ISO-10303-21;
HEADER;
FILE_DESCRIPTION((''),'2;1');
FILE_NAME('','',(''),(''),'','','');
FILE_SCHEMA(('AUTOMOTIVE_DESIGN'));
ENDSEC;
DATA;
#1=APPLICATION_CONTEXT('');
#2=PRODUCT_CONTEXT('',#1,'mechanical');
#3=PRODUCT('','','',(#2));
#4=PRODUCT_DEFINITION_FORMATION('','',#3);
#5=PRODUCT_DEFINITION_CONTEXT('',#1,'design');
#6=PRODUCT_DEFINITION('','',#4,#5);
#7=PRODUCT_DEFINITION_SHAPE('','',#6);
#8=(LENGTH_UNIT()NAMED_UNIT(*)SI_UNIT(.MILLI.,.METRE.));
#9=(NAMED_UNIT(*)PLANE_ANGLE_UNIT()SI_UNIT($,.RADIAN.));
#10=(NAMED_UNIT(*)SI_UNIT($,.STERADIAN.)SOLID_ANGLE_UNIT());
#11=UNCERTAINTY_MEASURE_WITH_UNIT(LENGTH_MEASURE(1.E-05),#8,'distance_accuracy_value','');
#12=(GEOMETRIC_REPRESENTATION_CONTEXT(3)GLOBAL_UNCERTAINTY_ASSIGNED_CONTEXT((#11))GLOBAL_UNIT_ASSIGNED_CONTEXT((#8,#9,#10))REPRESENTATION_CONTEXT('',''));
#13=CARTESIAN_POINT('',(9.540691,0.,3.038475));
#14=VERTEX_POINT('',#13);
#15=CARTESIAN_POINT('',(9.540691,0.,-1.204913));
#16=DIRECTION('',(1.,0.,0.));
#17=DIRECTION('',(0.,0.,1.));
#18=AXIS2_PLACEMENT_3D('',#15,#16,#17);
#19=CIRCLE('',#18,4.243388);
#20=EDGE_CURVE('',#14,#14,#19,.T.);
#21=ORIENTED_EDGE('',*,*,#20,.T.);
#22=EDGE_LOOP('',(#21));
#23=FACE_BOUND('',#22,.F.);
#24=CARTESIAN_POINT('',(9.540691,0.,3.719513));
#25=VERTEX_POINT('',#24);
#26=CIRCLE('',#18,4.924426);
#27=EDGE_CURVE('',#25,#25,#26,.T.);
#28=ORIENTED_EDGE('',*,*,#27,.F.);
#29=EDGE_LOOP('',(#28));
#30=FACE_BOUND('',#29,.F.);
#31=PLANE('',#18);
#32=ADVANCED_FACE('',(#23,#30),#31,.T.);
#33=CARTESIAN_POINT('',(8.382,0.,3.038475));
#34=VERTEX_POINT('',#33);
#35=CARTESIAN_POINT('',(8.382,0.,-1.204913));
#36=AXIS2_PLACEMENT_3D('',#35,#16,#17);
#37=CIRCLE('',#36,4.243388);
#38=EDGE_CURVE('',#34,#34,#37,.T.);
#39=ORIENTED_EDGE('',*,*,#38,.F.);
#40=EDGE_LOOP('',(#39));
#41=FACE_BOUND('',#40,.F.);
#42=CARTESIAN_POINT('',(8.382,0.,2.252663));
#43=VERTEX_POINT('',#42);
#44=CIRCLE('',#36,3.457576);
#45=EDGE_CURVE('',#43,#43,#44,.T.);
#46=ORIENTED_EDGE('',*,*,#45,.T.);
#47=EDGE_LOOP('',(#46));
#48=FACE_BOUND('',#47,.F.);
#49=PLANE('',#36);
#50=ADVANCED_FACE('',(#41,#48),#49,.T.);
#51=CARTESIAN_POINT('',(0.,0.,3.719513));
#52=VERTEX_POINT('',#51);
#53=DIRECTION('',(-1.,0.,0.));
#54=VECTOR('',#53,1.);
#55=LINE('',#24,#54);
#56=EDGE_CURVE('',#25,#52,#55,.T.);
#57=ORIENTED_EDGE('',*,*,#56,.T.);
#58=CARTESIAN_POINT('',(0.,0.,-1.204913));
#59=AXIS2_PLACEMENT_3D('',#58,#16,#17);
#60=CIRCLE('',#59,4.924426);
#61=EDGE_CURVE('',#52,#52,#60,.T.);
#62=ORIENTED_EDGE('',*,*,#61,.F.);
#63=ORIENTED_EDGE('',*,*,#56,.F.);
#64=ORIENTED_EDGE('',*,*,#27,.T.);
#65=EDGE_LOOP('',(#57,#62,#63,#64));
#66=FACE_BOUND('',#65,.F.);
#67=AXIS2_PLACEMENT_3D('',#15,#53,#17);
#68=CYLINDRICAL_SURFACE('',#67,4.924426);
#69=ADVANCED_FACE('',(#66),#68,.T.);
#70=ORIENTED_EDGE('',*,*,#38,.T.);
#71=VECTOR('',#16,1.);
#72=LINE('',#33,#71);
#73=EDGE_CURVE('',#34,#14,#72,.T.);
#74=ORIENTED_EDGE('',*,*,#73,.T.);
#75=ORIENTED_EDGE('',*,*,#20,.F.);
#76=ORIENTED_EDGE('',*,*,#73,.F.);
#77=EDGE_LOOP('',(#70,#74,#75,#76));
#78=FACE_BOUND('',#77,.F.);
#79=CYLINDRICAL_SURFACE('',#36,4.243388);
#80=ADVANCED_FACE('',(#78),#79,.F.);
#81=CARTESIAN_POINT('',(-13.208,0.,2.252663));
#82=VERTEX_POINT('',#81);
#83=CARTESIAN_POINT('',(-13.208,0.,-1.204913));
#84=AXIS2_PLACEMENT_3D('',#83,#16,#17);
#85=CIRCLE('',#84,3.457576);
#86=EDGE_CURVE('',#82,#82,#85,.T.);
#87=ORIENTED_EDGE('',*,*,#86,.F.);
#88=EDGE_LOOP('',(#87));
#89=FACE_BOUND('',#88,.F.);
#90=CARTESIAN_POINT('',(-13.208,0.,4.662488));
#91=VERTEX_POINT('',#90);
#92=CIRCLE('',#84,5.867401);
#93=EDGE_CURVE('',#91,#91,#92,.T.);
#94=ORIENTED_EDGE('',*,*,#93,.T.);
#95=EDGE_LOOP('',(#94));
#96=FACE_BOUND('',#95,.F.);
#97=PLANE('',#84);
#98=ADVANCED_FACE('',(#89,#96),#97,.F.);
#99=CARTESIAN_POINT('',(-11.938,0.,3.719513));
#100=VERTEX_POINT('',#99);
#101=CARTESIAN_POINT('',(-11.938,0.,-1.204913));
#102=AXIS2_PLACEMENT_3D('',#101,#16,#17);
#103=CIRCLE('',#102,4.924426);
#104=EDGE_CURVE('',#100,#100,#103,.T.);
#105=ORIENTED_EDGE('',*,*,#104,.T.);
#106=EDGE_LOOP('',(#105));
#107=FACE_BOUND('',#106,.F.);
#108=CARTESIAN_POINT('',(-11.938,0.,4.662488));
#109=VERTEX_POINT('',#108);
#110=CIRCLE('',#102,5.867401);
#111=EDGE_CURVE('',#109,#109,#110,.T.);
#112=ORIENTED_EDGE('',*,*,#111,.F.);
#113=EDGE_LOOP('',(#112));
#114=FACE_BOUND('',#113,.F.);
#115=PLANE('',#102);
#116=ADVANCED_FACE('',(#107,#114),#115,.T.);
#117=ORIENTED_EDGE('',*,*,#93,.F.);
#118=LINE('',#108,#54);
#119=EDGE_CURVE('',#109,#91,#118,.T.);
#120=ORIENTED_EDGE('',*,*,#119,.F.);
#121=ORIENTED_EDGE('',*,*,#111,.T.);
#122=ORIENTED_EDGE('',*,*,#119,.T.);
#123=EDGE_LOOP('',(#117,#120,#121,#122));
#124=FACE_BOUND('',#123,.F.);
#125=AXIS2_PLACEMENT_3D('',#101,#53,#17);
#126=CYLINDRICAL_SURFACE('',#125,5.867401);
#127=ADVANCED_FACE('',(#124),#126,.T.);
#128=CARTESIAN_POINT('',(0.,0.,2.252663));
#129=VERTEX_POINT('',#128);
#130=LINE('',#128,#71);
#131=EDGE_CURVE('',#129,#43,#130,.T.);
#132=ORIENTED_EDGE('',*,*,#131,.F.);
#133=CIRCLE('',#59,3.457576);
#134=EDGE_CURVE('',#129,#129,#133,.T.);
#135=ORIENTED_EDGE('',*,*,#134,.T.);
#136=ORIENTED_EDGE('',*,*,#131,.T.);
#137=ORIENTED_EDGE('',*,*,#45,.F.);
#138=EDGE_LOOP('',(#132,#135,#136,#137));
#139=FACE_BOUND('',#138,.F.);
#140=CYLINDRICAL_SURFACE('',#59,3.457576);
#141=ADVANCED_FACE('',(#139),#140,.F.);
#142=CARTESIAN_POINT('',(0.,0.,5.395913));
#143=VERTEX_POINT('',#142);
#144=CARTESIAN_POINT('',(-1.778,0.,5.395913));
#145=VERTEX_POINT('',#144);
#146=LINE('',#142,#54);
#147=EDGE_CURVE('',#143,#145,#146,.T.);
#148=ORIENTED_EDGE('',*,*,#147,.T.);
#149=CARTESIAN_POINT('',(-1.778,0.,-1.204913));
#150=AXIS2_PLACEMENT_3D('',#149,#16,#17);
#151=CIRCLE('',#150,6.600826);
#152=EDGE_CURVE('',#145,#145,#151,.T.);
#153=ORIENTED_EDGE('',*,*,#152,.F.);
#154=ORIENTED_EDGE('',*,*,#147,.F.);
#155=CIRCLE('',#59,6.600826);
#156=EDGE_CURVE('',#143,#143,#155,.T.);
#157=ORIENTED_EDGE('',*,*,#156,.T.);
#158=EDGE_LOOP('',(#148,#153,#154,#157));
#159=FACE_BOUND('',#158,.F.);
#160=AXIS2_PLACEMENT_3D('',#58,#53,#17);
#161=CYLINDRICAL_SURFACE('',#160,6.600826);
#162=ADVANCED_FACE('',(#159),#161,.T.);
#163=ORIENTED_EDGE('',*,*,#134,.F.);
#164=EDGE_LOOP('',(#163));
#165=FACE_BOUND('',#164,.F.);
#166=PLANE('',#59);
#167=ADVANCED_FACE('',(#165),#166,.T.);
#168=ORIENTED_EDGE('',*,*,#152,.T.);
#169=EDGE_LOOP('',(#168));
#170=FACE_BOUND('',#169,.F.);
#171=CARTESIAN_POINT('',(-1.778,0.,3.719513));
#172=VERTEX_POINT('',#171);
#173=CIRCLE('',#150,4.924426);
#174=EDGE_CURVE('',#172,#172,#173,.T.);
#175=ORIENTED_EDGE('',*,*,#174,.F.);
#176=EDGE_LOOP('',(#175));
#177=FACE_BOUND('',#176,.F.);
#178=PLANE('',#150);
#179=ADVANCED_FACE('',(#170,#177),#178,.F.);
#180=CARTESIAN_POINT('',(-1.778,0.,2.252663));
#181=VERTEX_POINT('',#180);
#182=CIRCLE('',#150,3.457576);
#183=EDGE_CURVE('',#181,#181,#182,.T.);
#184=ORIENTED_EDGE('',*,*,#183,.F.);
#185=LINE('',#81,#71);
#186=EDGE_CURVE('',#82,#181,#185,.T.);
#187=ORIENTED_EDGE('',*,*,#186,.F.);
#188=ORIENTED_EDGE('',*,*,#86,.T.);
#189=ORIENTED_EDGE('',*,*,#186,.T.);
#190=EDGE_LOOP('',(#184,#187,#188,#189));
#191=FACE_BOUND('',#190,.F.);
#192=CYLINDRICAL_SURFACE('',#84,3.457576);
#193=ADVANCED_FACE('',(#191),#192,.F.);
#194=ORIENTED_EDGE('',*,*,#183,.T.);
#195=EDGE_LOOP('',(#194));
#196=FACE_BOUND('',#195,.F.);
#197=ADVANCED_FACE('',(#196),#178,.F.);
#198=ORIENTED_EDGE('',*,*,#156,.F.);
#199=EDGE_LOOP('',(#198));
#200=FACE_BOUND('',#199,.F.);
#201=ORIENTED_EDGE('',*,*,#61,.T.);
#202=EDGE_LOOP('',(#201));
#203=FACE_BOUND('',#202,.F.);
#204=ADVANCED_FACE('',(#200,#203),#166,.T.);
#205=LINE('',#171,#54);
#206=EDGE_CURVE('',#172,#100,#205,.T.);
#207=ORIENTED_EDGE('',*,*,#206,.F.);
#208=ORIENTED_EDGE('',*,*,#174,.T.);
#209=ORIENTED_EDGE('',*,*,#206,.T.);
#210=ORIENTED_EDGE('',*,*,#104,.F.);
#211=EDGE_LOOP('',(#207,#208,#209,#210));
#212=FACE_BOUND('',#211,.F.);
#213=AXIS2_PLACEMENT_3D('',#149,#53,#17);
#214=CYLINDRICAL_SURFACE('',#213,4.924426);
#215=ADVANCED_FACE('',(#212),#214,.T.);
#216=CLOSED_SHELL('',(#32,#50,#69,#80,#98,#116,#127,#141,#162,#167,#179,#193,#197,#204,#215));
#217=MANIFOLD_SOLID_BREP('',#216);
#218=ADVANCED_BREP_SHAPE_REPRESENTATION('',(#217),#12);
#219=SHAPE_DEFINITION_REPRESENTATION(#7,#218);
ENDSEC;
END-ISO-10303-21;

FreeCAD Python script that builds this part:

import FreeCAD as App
import Part
import Sketcher
from FreeCAD import Vector
Q = App.Units.Quantity


def add_polygon(sketch, points):
    """Adds a closed chain of lines whose ends are joined by coincident constraints."""
    first, n = sketch.GeometryCount, len(points)
    for a, b in zip(points, points[1:] + points[:1]):
        sketch.addGeometry(Part.LineSegment(App.Vector(*a, 0), App.Vector(*b, 0)), False)
    for i in range(n):
        sketch.addConstraint(Sketcher.Constraint("Coincident", first + i, 2, first + (i + 1) % n, 1))

doc = App.newDocument("Part")
body = doc.addObject("PartDesign::Body", "Body")

# Sketch on XZ plane
sketch1 = body.newObject("Sketcher::SketchObject", "Sketch")
sketch1.AttachmentSupport = (doc.getObject("XZ_Plane"), [""])
sketch1.MapMode = "FlatFace"
add_polygon(sketch1, [(0, -1.204913), (0, 2.252663), (8.382, 2.252663), (8.382, 3.038475), (9.540691, 3.038475), (9.540691, 3.719513), (0, 3.719513), (0, 5.395913), (-1.778, 5.395913), (-1.778, 3.719513), (-11.938, 3.719513), (-11.938, 4.662488), (-13.208, 4.662488), (-13.208, 2.252663), (-1.778, 2.252663), (-1.778, -1.204913)])  # lines 0-15
sketch1.addGeometry(Part.LineSegment(Vector(-13.208, -1.204913, 0), Vector(9.540691, -1.204913, 0)), True)  # axis
sketch1.addConstraint(Sketcher.Constraint("Vertical", 0))
sketch1.addConstraint(Sketcher.Constraint("Horizontal", 1))
sketch1.addConstraint(Sketcher.Constraint("Vertical", 2))
sketch1.addConstraint(Sketcher.Constraint("Horizontal", 3))
sketch1.addConstraint(Sketcher.Constraint("Vertical", 4))
sketch1.addConstraint(Sketcher.Constraint("Horizontal", 5))
sketch1.addConstraint(Sketcher.Constraint("Vertical", 6))
sketch1.addConstraint(Sketcher.Constraint("Horizontal", 7))
sketch1.addConstraint(Sketcher.Constraint("Vertical", 8))
sketch1.addConstraint(Sketcher.Constraint("Horizontal", 9))
sketch1.addConstraint(Sketcher.Constraint("Vertical", 10))
sketch1.addConstraint(Sketcher.Constraint("Horizontal", 11))
sketch1.addConstraint(Sketcher.Constraint("Vertical", 12))
sketch1.addConstraint(Sketcher.Constraint("Horizontal", 13))
sketch1.addConstraint(Sketcher.Constraint("Vertical", 14))
sketch1.addConstraint(Sketcher.Constraint("Horizontal", 15))
sketch1.addConstraint(Sketcher.Constraint("Horizontal", 16))
sketch1.addConstraint(Sketcher.Constraint("PointOnObject", 0, 2, -2))
sketch1.addConstraint(Sketcher.Constraint("PointOnObject", 5, 2, -2))
sketch1.addConstraint(Sketcher.Constraint("Horizontal", 5, 2, 8, 2))
sketch1.addConstraint(Sketcher.Constraint("Horizontal", 1, 2, 12, 2))
sketch1.addConstraint(Sketcher.Constraint("Horizontal", 15, 2, 16, 1))
sketch1.addConstraint(Sketcher.Constraint("Vertical", 8, 2, 13, 2))
sketch1.addConstraint(Sketcher.Constraint("Vertical", 12, 2, 16, 1))
sketch1.addConstraint(Sketcher.Constraint("Vertical", 4, 2, 16, 2))
sketch1.addConstraint(Sketcher.Constraint("DistanceX", 9, 2, 9, 1, Q("0.4 in")))
sketch1.addConstraint(Sketcher.Constraint("DistanceX", 1, 1, 1, 2, Q("0.33 in")))
sketch1.addConstraint(Sketcher.Constraint("DistanceX", 7, 2, 7, 1, Q("0.07 in")))
sketch1.addConstraint(Sketcher.Constraint("DistanceX", 11, 2, 11, 1, Q("0.05 in")))
sketch1.addConstraint(Sketcher.Constraint("DistanceY", 6, 1, 6, 2, Q("0.066 in")))
sketch1.addConstraint(Sketcher.Constraint("DistanceY", 16, 1, 11, 2, Q("0.231 in")))
sketch1.addConstraint(Sketcher.Constraint("DistanceX", 3, 1, 3, 2, Q("1.158691 mm")))
sketch1.addConstraint(Sketcher.Constraint("DistanceY", 2, 1, 2, 2, Q("0.785812 mm")))
sketch1.addConstraint(Sketcher.Constraint("DistanceY", 4, 1, 4, 2, Q("0.681038 mm")))
sketch1.addConstraint(Sketcher.Constraint("DistanceY", 0, 1, 0, 2, Q("3.457576 mm")))
sketch1.addConstraint(Sketcher.Constraint("DistanceY", -1, 1, 0, 2, Q("2.252663 mm")))
revolution = body.newObject("PartDesign::Revolution", "Revolution")
revolution.Profile = sketch1
revolution.ReferenceAxis = (sketch1, ["Axis0"])
revolution.Angle = 360

doc.recompute()
